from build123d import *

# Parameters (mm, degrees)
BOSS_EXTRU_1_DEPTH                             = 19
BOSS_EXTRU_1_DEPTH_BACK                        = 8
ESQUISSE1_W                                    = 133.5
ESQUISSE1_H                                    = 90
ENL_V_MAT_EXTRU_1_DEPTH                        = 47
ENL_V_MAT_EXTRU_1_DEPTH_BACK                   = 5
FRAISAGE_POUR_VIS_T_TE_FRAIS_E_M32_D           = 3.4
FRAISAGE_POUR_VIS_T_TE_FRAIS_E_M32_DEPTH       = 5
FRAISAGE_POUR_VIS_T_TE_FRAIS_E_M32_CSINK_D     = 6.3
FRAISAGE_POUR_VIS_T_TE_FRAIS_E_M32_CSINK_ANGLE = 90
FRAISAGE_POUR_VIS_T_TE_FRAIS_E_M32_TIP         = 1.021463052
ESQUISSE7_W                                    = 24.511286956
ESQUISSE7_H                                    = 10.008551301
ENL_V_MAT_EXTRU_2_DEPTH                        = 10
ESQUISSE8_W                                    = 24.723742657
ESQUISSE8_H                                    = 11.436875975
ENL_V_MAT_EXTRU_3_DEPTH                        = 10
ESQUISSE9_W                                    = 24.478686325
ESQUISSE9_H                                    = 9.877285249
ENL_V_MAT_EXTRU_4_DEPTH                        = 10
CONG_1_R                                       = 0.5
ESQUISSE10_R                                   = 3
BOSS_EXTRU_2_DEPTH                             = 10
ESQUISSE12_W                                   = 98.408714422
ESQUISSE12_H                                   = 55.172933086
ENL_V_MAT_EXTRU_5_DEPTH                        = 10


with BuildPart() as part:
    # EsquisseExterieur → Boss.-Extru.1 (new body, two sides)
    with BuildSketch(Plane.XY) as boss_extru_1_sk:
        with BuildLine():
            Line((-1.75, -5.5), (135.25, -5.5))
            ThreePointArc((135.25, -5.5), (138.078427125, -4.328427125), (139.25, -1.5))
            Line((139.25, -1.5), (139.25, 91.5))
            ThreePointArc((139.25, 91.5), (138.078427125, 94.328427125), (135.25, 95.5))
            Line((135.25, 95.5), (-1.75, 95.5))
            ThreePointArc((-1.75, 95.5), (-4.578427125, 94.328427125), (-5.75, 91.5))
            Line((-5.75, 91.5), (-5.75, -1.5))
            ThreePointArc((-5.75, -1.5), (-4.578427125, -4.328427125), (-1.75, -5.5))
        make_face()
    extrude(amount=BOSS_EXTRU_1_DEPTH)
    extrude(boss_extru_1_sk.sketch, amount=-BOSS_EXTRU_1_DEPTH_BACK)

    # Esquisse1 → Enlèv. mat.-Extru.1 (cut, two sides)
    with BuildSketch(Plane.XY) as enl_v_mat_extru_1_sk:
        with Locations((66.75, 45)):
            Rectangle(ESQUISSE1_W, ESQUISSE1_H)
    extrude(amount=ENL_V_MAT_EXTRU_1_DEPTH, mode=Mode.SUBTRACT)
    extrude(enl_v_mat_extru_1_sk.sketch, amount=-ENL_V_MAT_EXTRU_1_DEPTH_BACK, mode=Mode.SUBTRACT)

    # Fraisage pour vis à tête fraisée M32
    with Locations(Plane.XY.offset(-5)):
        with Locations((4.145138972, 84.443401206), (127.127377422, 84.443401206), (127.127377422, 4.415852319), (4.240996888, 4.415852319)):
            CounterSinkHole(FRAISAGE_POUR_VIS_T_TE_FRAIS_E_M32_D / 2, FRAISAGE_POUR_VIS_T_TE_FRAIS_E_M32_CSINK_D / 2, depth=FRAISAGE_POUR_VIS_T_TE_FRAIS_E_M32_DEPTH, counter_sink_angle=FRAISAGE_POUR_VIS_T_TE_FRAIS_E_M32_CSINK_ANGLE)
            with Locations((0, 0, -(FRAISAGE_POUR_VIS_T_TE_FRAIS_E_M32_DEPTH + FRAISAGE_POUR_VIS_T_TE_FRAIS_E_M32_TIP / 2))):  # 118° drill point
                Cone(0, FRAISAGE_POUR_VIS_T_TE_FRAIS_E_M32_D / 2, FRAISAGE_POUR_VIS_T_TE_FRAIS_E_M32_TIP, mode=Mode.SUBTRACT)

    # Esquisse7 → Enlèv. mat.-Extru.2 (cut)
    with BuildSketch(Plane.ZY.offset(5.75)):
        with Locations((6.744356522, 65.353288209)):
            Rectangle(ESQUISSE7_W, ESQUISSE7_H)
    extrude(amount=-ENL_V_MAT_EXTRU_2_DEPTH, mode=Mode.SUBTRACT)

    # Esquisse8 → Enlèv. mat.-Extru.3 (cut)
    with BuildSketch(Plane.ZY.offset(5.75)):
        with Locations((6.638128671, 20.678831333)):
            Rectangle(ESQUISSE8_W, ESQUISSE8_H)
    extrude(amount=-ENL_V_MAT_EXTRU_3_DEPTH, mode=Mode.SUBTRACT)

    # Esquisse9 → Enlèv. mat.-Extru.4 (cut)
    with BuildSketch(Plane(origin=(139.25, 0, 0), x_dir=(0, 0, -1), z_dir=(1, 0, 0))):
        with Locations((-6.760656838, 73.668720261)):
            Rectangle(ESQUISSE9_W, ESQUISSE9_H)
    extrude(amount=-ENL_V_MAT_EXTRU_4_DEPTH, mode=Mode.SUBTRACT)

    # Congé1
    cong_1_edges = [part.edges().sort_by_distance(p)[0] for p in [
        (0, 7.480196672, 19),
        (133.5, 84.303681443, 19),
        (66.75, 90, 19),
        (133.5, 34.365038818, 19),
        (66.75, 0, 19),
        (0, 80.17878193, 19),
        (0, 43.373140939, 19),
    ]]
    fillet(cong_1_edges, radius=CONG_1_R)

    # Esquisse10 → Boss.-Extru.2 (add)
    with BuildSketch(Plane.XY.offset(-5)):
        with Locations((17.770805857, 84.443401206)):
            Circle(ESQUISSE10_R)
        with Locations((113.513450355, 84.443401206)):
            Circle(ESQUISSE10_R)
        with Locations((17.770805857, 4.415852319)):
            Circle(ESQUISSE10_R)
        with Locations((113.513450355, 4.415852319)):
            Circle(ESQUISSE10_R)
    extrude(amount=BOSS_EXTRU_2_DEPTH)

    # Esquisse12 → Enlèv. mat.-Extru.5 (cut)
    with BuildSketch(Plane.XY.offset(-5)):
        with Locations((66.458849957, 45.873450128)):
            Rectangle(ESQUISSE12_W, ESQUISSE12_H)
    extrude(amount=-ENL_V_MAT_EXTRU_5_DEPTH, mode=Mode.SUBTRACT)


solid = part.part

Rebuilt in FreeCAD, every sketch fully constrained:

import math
import FreeCAD as App
import Part
import Sketcher


def edges_at(feature, points):
    """Names of the edges that pass closest to the given points."""
    edges = feature.Shape.Edges
    near = lambda p: min(range(len(edges)), key=lambda i: edges[i].distToShape(Part.Vertex(*p))[0])
    return sorted({f"Edge{near(p) + 1}" for p in points})

doc = App.newDocument("Part")
body = doc.addObject("PartDesign::Body", "Body")

# Sketch on XY plane
sketch1 = body.newObject("Sketcher::SketchObject", "Sketch")
sketch1.AttachmentSupport = (doc.getObject("XY_Plane"), [""])
sketch1.MapMode = "FlatFace"
sketch1.addGeometry([
    Part.LineSegment(App.Vector(-1.8, -5.5, 0), App.Vector(135.2, -5.5, 0)),  # 0
    Part.ArcOfCircle(Part.Circle(App.Vector(135.3, -1.5, 0), App.Vector(0, 0, 1), 4), math.radians(-90), math.radians(0)),  # 1
    Part.LineSegment(App.Vector(139.2, -1.5, 0), App.Vector(139.2, 91.5, 0)),  # 2
    Part.ArcOfCircle(Part.Circle(App.Vector(135.3, 91.5, 0), App.Vector(0, 0, 1), 4), math.radians(0), math.radians(90)),  # 3
    Part.LineSegment(App.Vector(135.2, 95.5, 0), App.Vector(-1.8, 95.5, 0)),  # 4
    Part.ArcOfCircle(Part.Circle(App.Vector(-1.8, 91.5, 0), App.Vector(0, 0, 1), 4), math.radians(90), math.radians(180)),  # 5
    Part.LineSegment(App.Vector(-5.8, 91.5, 0), App.Vector(-5.8, -1.5, 0)),  # 6
    Part.ArcOfCircle(Part.Circle(App.Vector(-1.8, -1.5, 0), App.Vector(0, 0, 1), 4), math.radians(180), math.radians(270)),  # 7
], False)
sketch1.addConstraint([
    Sketcher.Constraint("Tangent", 0, 2, 1, 1),
    Sketcher.Constraint("Tangent", 1, 2, 2, 1),
    Sketcher.Constraint("Tangent", 2, 2, 3, 1),
    Sketcher.Constraint("Tangent", 3, 2, 4, 1),
    Sketcher.Constraint("Tangent", 4, 2, 5, 1),
    Sketcher.Constraint("Tangent", 5, 2, 6, 1),
    Sketcher.Constraint("Tangent", 6, 2, 7, 1),
    Sketcher.Constraint("Tangent", 7, 2, 0, 1),
    Sketcher.Constraint("Horizontal", 0),
    Sketcher.Constraint("Vertical", 2),
    Sketcher.Constraint("Horizontal", 4),
    Sketcher.Constraint("Vertical", 6),
    Sketcher.Constraint("Equal", 1, 3),
    Sketcher.Constraint("Equal", 3, 5),
    Sketcher.Constraint("Equal", 5, 7),
    Sketcher.Constraint("Radius", 1, 4.0),
    Sketcher.Constraint("DistanceX", 0, 1, 0, 2, 137.0),
    Sketcher.Constraint("DistanceY", 2, 1, 2, 2, 93.0),
    Sketcher.Constraint("DistanceY", 1, 3, -1, 1, 1.5),
    Sketcher.Constraint("DistanceX", -1, 1, 1, 3, 135.25),
])
pad1 = body.newObject("PartDesign::Pad", "Pad")
pad1.Profile = sketch1
pad1.Type = "TwoLengths"
pad1.Length = 19
pad1.Length2 = 8

# Sketch on XY plane
sketch2 = body.newObject("Sketcher::SketchObject", "Sketch001")
sketch2.AttachmentSupport = (doc.getObject("XY_Plane"), [""])
sketch2.MapMode = "FlatFace"
sketch2.addGeometry([
    Part.LineSegment(App.Vector(0, 90, 0), App.Vector(0, 0, 0)),
    Part.LineSegment(App.Vector(0, 0, 0), App.Vector(134, 0, 0)),
    Part.LineSegment(App.Vector(134, 0, 0), App.Vector(134, 90, 0)),
    Part.LineSegment(App.Vector(134, 90, 0), App.Vector(0, 90, 0)),
], False)
sketch2.addConstraint([
    Sketcher.Constraint("Coincident", 0, 2, 1, 1),
    Sketcher.Constraint("Coincident", 1, 2, 2, 1),
    Sketcher.Constraint("Coincident", 2, 2, 3, 1),
    Sketcher.Constraint("Coincident", 3, 2, 0, 1),
    Sketcher.Constraint("Vertical", 0),
    Sketcher.Constraint("Horizontal", 1),
    Sketcher.Constraint("Vertical", 2),
    Sketcher.Constraint("Horizontal", 3),
    Sketcher.Constraint("Coincident", 0, 2, -1, 1),
    Sketcher.Constraint("DistanceY", 0, 2, 0, 1, 90.0),
    Sketcher.Constraint("DistanceX", 1, 1, 1, 2, 133.5),
])
pocket1 = body.newObject("PartDesign::Pocket", "Pocket")
pocket1.Profile = sketch2
pocket1.Type = "TwoLengths"
pocket1.Length = 47
pocket1.Length2 = 5
pocket1.Reversed = True

# Sketch on XY plane
sketch3 = body.newObject("Sketcher::SketchObject", "Sketch002")
sketch3.AttachmentSupport = (doc.getObject("XY_Plane"), [""])
sketch3.MapMode = "FlatFace"
sketch3.AttachmentOffset = App.Placement(App.Vector(0, 0, -5), App.Rotation())
sketch3.addGeometry([
    Part.Circle(App.Vector(4.1, 84.4, 0), App.Vector(0, 0, 1), 1.7),
    Part.Circle(App.Vector(127.1, 84.4, 0), App.Vector(0, 0, 1), 1.7),
    Part.Circle(App.Vector(127.1, 4.4, 0), App.Vector(0, 0, 1), 1.7),
    Part.Circle(App.Vector(4.2, 4.4, 0), App.Vector(0, 0, 1), 1.7),
], False)
sketch3.addConstraint([
    Sketcher.Constraint("Equal", 0, 1),
    Sketcher.Constraint("Equal", 1, 2),
    Sketcher.Constraint("Equal", 2, 3),
    Sketcher.Constraint("Horizontal", 0, 3, 1, 3),
    Sketcher.Constraint("Horizontal", 2, 3, 3, 3),
    Sketcher.Constraint("Vertical", 1, 3, 2, 3),
    Sketcher.Constraint("Diameter", 0, 3.4),
    Sketcher.Constraint("DistanceY", -1, 1, 0, 3, 84.443401),
    Sketcher.Constraint("DistanceX", -1, 1, 0, 3, 4.145139),
    Sketcher.Constraint("DistanceX", 0, 3, 1, 3, 122.982238),
    Sketcher.Constraint("DistanceY", 2, 3, 1, 3, 80.027549),
    Sketcher.Constraint("DistanceX", 3, 3, 2, 3, 122.886381),
])
doc.recompute()
hole = body.newObject("PartDesign::Hole", "Hole")
hole.Profile = sketch3
hole.ThreadType = "None"
hole.Diameter = 3.4
hole.DepthType = "Dimension"
hole.Depth = 5
hole.DrillPoint = "Angled"
hole.DrillPointAngle = 118
hole.HoleCutType = "Countersink"
hole.HoleCutDiameter = 6.3
hole.HoleCutCountersinkAngle = 90

# Sketch on YZ plane
sketch4 = body.newObject("Sketcher::SketchObject", "Sketch003")
sketch4.AttachmentSupport = (doc.getObject("YZ_Plane"), [""])
sketch4.MapMode = "FlatFace"
sketch4.AttachmentOffset = App.Placement(App.Vector(0, 0, -5.75), App.Rotation())
sketch4.addGeometry([
    Part.LineSegment(App.Vector(70, -6, 0), App.Vector(60, -6, 0)),
    Part.LineSegment(App.Vector(60, -6, 0), App.Vector(60, 19, 0)),
    Part.LineSegment(App.Vector(60, 19, 0), App.Vector(70, 19, 0)),
    Part.LineSegment(App.Vector(70, 19, 0), App.Vector(70, -6, 0)),
], False)
sketch4.addConstraint([
    Sketcher.Constraint("Coincident", 0, 2, 1, 1),
    Sketcher.Constraint("Coincident", 1, 2, 2, 1),
    Sketcher.Constraint("Coincident", 2, 2, 3, 1),
    Sketcher.Constraint("Coincident", 3, 2, 0, 1),
    Sketcher.Constraint("Horizontal", 0),
    Sketcher.Constraint("Vertical", 1),
    Sketcher.Constraint("Horizontal", 2),
    Sketcher.Constraint("Vertical", 3),
    Sketcher.Constraint("DistanceY", -1, 1, 1, 2, 19.0),
    Sketcher.Constraint("DistanceX", 0, 2, 0, 1, 10.008551),
    Sketcher.Constraint("DistanceY", 1, 1, 1, 2, 24.511287),
    Sketcher.Constraint("DistanceX", -1, 1, 0, 2, 60.349013),
])
pocket2 = body.newObject("PartDesign::Pocket", "Pocket001")
pocket2.Profile = sketch4
pocket2.Length = 10
pocket2.Reversed = True

# Sketch on YZ plane
sketch5 = body.newObject("Sketcher::SketchObject", "Sketch004")
sketch5.AttachmentSupport = (doc.getObject("YZ_Plane"), [""])
sketch5.MapMode = "FlatFace"
sketch5.AttachmentOffset = App.Placement(App.Vector(0, 0, -5.75), App.Rotation())
sketch5.addGeometry([
    Part.LineSegment(App.Vector(26, -6, 0), App.Vector(15, -6, 0)),
    Part.LineSegment(App.Vector(15, -6, 0), App.Vector(15, 19, 0)),
    Part.LineSegment(App.Vector(15, 19, 0), App.Vector(26, 19, 0)),
    Part.LineSegment(App.Vector(26, 19, 0), App.Vector(26, -6, 0)),
], False)
sketch5.addConstraint([
    Sketcher.Constraint("Coincident", 0, 2, 1, 1),
    Sketcher.Constraint("Coincident", 1, 2, 2, 1),
    Sketcher.Constraint("Coincident", 2, 2, 3, 1),
    Sketcher.Constraint("Coincident", 3, 2, 0, 1),
    Sketcher.Constraint("Horizontal", 0),
    Sketcher.Constraint("Vertical", 1),
    Sketcher.Constraint("Horizontal", 2),
    Sketcher.Constraint("Vertical", 3),
    Sketcher.Constraint("DistanceY", -1, 1, 1, 2, 19.0),
    Sketcher.Constraint("DistanceX", 0, 2, 0, 1, 11.436876),
    Sketcher.Constraint("DistanceY", 1, 1, 1, 2, 24.723743),
    Sketcher.Constraint("DistanceX", -1, 1, 2, 2, 26.397269),
])
pocket3 = body.newObject("PartDesign::Pocket", "Pocket002")
pocket3.Profile = sketch5
pocket3.Length = 10
pocket3.Reversed = True

# Sketch on YZ plane
sketch6 = body.newObject("Sketcher::SketchObject", "Sketch005")
sketch6.AttachmentSupport = (doc.getObject("YZ_Plane"), [""])
sketch6.MapMode = "FlatFace"
sketch6.AttachmentOffset = App.Placement(App.Vector(0, 0, 139.25), App.Rotation())
sketch6.addGeometry([
    Part.LineSegment(App.Vector(79, 19, 0), App.Vector(69, 19, 0)),
    Part.LineSegment(App.Vector(69, 19, 0), App.Vector(69, -5, 0)),
    Part.LineSegment(App.Vector(69, -5, 0), App.Vector(79, -5, 0)),
    Part.LineSegment(App.Vector(79, -5, 0), App.Vector(79, 19, 0)),
], False)
sketch6.addConstraint([
    Sketcher.Constraint("Coincident", 0, 2, 1, 1),
    Sketcher.Constraint("Coincident", 1, 2, 2, 1),
    Sketcher.Constraint("Coincident", 2, 2, 3, 1),
    Sketcher.Constraint("Coincident", 3, 2, 0, 1),
    Sketcher.Constraint("Horizontal", 0),
    Sketcher.Constraint("Vertical", 1),
    Sketcher.Constraint("Horizontal", 2),
    Sketcher.Constraint("Vertical", 3),
    Sketcher.Constraint("DistanceY", -1, 1, 0, 2, 19.0),
    Sketcher.Constraint("DistanceX", 0, 2, 0, 1, 9.877285),
    Sketcher.Constraint("DistanceY", 1, 2, 1, 1, 24.478686),
    Sketcher.Constraint("DistanceX", -1, 1, 0, 2, 68.730078),
])
pocket4 = body.newObject("PartDesign::Pocket", "Pocket003")
pocket4.Profile = sketch6
pocket4.Length = 10
doc.recompute()

fillet = body.newObject("PartDesign::Fillet", "Fillet")
fillet.Base = (pocket4, edges_at(pocket4, [
    (0, 7.48, 19),
    (133.5, 84.304, 19),
    (66.75, 90, 19),
    (133.5, 34.365, 19),
    (66.75, 0, 19),
    (0, 80.179, 19),
    (0, 43.373, 19),
]))
fillet.Radius = 0.5

# Sketch on XY plane
sketch7 = body.newObject("Sketcher::SketchObject", "Sketch006")
sketch7.AttachmentSupport = (doc.getObject("XY_Plane"), [""])
sketch7.MapMode = "FlatFace"
sketch7.AttachmentOffset = App.Placement(App.Vector(0, 0, -5), App.Rotation())
sketch7.addGeometry([
    Part.Circle(App.Vector(17.8, 84.4, 0), App.Vector(0, 0, 1), 3),
    Part.Circle(App.Vector(113.5, 84.4, 0), App.Vector(0, 0, 1), 3),
    Part.Circle(App.Vector(17.8, 4.4, 0), App.Vector(0, 0, 1), 3),
    Part.Circle(App.Vector(113.5, 4.4, 0), App.Vector(0, 0, 1), 3),
], False)
sketch7.addConstraint([
    Sketcher.Constraint("Equal", 0, 1),
    Sketcher.Constraint("Equal", 1, 2),
    Sketcher.Constraint("Equal", 2, 3),
    Sketcher.Constraint("Horizontal", 0, 3, 1, 3),
    Sketcher.Constraint("Horizontal", 2, 3, 3, 3),
    Sketcher.Constraint("Vertical", 0, 3, 2, 3),
    Sketcher.Constraint("Vertical", 1, 3, 3, 3),
    Sketcher.Constraint("Diameter", 0, 6.0),
    Sketcher.Constraint("DistanceY", -1, 1, 0, 3, 84.443401),
    Sketcher.Constraint("DistanceX", -1, 1, 1, 3, 113.51345),
    Sketcher.Constraint("DistanceY", 2, 3, 0, 3, 80.027549),
    Sketcher.Constraint("DistanceX", -1, 1, 0, 3, 17.770806),
])
pad2 = body.newObject("PartDesign::Pad", "Pad001")
pad2.Profile = sketch7
pad2.Length = 10

# Sketch on XY plane
sketch8 = body.newObject("Sketcher::SketchObject", "Sketch007")
sketch8.AttachmentSupport = (doc.getObject("XY_Plane"), [""])
sketch8.MapMode = "FlatFace"
sketch8.AttachmentOffset = App.Placement(App.Vector(0, 0, -5), App.Rotation())
sketch8.addGeometry([
    Part.LineSegment(App.Vector(17, 73, 0), App.Vector(17, 18, 0)),
    Part.LineSegment(App.Vector(17, 18, 0), App.Vector(116, 18, 0)),
    Part.LineSegment(App.Vector(116, 18, 0), App.Vector(116, 73, 0)),
    Part.LineSegment(App.Vector(116, 73, 0), App.Vector(17, 73, 0)),
], False)
sketch8.addConstraint([
    Sketcher.Constraint("Coincident", 0, 2, 1, 1),
    Sketcher.Constraint("Coincident", 1, 2, 2, 1),
    Sketcher.Constraint("Coincident", 2, 2, 3, 1),
    Sketcher.Constraint("Coincident", 3, 2, 0, 1),
    Sketcher.Constraint("Vertical", 0),
    Sketcher.Constraint("Horizontal", 1),
    Sketcher.Constraint("Vertical", 2),
    Sketcher.Constraint("Horizontal", 3),
    Sketcher.Constraint("DistanceX", 1, 1, 1, 2, 98.408714),
    Sketcher.Constraint("DistanceY", 0, 2, 0, 1, 55.172933),
    Sketcher.Constraint("DistanceX", -1, 1, 0, 2, 17.254493),
    Sketcher.Constraint("DistanceY", -1, 1, 0, 2, 18.286984),
])
pocket5 = body.newObject("PartDesign::Pocket", "Pocket004")
pocket5.Profile = sketch8
pocket5.Length = 10

doc.recompute()
